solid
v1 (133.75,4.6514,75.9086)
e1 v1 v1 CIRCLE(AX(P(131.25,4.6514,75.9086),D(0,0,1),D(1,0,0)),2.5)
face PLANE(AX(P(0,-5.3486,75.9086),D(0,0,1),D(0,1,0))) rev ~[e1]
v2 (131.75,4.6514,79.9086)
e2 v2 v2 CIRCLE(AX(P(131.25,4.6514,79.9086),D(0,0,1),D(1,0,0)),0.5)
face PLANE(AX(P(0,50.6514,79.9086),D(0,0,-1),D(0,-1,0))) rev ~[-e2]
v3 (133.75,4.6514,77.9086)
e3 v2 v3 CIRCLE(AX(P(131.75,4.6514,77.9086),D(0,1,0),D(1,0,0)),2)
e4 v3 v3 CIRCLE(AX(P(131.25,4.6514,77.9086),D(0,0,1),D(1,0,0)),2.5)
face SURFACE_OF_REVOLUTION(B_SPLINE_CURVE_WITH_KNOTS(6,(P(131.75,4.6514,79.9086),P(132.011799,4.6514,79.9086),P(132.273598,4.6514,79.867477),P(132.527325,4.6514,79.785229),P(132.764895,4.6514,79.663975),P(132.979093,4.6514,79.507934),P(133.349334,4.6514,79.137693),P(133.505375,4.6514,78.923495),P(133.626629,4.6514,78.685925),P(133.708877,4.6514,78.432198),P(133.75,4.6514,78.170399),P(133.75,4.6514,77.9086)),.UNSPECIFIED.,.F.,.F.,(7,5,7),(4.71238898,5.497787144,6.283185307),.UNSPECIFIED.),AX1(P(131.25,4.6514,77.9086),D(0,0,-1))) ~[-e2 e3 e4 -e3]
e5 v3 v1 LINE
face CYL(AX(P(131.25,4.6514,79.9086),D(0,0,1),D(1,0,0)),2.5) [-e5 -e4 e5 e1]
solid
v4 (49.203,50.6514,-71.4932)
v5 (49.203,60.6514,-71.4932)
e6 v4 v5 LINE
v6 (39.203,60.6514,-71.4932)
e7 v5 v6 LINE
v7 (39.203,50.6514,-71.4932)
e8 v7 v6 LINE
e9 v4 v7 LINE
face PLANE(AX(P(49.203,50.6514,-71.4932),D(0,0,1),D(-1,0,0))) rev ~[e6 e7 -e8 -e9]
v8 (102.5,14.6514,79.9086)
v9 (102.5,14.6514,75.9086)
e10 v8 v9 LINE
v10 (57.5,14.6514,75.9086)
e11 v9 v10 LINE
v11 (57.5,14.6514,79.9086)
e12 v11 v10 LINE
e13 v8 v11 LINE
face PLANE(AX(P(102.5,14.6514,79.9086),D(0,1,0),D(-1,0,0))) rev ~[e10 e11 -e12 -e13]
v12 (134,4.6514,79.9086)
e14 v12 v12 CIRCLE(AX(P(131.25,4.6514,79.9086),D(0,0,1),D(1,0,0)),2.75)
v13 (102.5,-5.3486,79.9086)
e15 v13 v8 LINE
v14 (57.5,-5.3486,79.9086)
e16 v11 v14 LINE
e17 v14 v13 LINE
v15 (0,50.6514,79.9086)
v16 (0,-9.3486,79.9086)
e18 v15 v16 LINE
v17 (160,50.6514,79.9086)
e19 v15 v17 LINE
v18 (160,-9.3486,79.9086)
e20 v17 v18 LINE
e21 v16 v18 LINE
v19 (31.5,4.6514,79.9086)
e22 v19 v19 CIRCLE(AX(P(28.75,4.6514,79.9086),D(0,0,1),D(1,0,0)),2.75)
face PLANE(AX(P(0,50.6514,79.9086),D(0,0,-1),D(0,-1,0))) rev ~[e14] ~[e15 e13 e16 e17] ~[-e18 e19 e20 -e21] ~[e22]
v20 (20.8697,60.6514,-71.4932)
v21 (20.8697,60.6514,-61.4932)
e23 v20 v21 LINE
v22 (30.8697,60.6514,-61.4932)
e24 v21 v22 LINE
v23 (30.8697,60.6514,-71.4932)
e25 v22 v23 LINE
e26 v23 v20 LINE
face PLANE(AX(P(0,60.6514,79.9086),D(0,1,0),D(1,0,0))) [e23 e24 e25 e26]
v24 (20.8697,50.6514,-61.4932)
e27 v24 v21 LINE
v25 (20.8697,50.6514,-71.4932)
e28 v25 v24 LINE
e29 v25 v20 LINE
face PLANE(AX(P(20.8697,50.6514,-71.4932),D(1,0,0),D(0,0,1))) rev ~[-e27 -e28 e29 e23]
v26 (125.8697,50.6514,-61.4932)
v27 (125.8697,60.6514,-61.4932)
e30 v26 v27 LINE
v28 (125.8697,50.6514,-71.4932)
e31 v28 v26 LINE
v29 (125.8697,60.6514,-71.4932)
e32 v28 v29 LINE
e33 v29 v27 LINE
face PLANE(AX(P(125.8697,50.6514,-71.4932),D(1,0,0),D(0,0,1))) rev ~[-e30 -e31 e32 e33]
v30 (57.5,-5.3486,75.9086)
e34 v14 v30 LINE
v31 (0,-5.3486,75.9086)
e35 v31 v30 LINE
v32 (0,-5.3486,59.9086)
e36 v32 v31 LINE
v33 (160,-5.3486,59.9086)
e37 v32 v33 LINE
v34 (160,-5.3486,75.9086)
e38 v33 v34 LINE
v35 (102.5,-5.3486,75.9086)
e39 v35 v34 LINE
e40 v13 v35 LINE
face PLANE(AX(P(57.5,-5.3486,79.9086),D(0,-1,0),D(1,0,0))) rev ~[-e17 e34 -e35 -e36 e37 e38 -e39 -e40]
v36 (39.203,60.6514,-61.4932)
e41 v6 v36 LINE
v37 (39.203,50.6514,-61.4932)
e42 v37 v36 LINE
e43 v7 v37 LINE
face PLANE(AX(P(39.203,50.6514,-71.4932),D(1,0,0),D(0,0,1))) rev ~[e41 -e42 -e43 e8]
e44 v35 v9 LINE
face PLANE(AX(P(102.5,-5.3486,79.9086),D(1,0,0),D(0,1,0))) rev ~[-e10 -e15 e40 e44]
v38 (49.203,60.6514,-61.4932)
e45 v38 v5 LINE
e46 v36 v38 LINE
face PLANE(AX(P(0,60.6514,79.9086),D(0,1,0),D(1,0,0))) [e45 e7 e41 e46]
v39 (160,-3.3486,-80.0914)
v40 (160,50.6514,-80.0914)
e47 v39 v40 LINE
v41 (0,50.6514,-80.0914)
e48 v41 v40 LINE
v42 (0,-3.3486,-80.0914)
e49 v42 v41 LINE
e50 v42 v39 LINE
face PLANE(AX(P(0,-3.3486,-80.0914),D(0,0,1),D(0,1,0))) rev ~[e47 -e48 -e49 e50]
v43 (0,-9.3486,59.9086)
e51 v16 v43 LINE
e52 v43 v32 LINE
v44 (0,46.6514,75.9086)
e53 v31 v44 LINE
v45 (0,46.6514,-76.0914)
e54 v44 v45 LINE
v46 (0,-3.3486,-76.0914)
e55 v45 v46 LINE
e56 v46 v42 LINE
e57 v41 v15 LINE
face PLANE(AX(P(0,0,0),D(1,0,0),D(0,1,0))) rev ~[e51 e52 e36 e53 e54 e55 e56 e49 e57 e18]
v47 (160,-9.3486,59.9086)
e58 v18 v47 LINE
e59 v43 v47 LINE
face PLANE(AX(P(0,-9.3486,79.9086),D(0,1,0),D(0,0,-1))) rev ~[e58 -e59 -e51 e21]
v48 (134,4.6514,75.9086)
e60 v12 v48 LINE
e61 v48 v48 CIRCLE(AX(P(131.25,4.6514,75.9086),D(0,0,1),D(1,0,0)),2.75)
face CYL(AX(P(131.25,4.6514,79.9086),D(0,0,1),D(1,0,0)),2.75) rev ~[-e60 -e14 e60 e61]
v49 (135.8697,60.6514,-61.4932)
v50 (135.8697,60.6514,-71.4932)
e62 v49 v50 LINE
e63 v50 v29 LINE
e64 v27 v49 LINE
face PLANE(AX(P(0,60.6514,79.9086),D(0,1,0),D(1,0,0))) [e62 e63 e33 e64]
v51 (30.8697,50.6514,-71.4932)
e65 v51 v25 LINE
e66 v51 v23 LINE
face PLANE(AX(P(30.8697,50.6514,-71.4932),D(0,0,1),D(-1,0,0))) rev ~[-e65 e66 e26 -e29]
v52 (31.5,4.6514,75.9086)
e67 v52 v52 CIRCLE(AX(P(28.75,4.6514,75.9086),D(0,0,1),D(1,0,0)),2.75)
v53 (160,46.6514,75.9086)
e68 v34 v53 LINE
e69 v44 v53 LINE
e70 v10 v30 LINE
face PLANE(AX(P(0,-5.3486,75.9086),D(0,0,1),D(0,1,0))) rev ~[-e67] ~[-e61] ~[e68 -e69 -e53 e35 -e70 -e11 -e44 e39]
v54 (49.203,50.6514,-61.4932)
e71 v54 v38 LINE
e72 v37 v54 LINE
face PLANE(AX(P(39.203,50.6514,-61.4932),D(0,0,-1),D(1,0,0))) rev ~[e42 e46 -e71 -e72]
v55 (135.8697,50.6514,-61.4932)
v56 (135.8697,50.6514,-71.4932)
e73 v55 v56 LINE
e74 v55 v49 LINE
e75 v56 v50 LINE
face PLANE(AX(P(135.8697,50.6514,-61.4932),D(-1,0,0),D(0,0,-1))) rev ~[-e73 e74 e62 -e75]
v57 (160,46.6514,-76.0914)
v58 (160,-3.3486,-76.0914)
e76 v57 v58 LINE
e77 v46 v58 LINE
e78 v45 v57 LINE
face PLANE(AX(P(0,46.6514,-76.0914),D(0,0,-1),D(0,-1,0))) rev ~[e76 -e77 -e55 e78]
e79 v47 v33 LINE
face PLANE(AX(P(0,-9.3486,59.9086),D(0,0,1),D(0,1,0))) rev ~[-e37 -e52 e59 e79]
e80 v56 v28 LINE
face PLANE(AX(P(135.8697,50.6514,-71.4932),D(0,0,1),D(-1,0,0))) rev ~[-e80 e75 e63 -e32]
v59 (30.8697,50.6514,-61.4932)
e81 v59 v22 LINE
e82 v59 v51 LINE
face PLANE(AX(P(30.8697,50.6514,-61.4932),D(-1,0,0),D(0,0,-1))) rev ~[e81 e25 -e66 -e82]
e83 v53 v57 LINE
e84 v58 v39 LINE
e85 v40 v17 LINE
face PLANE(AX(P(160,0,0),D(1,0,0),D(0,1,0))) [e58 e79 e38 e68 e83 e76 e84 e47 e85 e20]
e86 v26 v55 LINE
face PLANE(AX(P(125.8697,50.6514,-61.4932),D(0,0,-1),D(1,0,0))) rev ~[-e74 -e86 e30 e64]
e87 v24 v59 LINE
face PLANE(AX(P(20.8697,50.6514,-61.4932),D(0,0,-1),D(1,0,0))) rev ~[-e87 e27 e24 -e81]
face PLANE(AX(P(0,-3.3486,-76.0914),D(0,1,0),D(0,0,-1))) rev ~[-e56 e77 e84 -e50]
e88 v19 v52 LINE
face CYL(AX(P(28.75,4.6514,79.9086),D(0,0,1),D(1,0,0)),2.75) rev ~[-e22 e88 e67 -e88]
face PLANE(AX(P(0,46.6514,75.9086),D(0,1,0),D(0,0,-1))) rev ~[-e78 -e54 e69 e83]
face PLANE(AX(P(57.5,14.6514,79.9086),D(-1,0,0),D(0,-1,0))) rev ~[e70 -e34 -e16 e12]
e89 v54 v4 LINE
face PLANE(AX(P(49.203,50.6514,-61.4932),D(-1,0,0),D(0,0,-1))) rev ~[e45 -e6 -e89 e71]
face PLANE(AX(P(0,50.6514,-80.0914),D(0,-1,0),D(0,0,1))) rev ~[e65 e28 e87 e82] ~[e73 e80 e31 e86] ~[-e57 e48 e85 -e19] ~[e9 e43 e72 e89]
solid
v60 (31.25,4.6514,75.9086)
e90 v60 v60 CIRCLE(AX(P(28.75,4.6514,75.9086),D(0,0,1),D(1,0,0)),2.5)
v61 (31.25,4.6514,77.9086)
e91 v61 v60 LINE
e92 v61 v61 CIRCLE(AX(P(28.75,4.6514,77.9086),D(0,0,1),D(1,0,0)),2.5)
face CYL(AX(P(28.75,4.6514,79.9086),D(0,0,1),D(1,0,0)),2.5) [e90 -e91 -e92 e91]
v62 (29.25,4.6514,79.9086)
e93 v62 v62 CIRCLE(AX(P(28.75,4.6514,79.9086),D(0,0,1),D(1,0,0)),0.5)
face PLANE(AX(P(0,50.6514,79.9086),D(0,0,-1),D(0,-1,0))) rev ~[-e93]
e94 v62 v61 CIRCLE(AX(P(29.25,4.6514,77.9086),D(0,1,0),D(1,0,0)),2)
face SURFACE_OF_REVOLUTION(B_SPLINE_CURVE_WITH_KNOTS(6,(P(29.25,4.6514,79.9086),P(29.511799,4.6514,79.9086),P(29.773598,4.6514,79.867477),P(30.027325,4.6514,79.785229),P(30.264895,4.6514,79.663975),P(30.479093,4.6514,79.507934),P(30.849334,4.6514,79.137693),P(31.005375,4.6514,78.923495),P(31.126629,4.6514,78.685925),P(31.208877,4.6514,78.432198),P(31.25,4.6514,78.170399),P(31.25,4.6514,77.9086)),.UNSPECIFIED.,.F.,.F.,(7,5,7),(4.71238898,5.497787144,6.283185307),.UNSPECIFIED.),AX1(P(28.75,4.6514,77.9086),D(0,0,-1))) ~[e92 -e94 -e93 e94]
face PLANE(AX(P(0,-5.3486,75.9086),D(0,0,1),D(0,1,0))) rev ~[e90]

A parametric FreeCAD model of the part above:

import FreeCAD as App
import Part
import Sketcher

V = App.Vector


def edges_at(feature, points):
    """Names of the edges that pass closest to the given points."""
    edges = feature.Shape.Edges
    near = lambda p: min(range(len(edges)), key=lambda i: edges[i].distToShape(Part.Vertex(*p))[0])
    return sorted({f"Edge{near(p) + 1}" for p in points})


def add_polygon(sketch, points):
    """Adds a closed chain of lines whose ends are joined by coincident constraints."""
    first, n = sketch.GeometryCount, len(points)
    for a, b in zip(points, points[1:] + points[:1]):
        sketch.addGeometry(Part.LineSegment(App.Vector(*a, 0), App.Vector(*b, 0)), False)
    for i in range(n):
        sketch.addConstraint(Sketcher.Constraint("Coincident", first + i, 2, first + (i + 1) % n, 1))

doc = App.newDocument("Part")
body = doc.addObject("PartDesign::Body", "Body")
body.AllowCompound = True

# Sketch on YZ plane
sketch1 = doc.addObject("Sketcher::SketchObject", "Sketch")
body.addObject(sketch1)
sketch1.AttachmentSupport = (doc.YZ_Plane, [""])
sketch1.MapMode = "FlatFace"
add_polygon(sketch1, [(50.7, -80.1), (50.7, 79.9), (-9.3, 79.9), (-9.3, 59.9), (-5.3, 59.9), (-5.3, 75.9), (46.7, 75.9), (46.7, -76.1), (-3.3, -76.1), (-3.3, -80.1)])  # lines 0-9
sketch1.addConstraint(Sketcher.Constraint("Vertical", 0))
sketch1.addConstraint(Sketcher.Constraint("Horizontal", 1))
sketch1.addConstraint(Sketcher.Constraint("Vertical", 2))
sketch1.addConstraint(Sketcher.Constraint("Horizontal", 3))
sketch1.addConstraint(Sketcher.Constraint("Vertical", 4))
sketch1.addConstraint(Sketcher.Constraint("Horizontal", 5))
sketch1.addConstraint(Sketcher.Constraint("Vertical", 6))
sketch1.addConstraint(Sketcher.Constraint("Horizontal", 7))
sketch1.addConstraint(Sketcher.Constraint("Vertical", 8))
sketch1.addConstraint(Sketcher.Constraint("Horizontal", 9))
sketch1.addConstraint(Sketcher.Constraint("Equal", 3, 8))
sketch1.addConstraint(Sketcher.Constraint("DistanceX", 1, 2, 1, 1, 60.0))
sketch1.addConstraint(Sketcher.Constraint("DistanceX", 3, 1, 3, 2, 4.0))
sketch1.addConstraint(Sketcher.Constraint("DistanceX", 9, 1, 9, 2, 54.0))
sketch1.addConstraint(Sketcher.Constraint("DistanceY", 0, 1, 0, 2, 160.0))
sketch1.addConstraint(Sketcher.Constraint("DistanceY", 2, 2, 2, 1, 20.0))
sketch1.addConstraint(Sketcher.Constraint("DistanceY", 4, 2, 1, 2, 4.0))
sketch1.addConstraint(Sketcher.Constraint("DistanceX", 5, 2, 0, 2, 4.0))
sketch1.addConstraint(Sketcher.Constraint("DistanceX", -1, 1, 0, 2, 50.6514))
sketch1.addConstraint(Sketcher.Constraint("DistanceY", -1, 1, 0, 2, 79.9086))
pad1 = doc.addObject("PartDesign::Pad", "Pad")
body.addObject(pad1)
pad1.Profile = sketch1
pad1.Length = 160

# Sketch on XY plane
sketch2 = doc.addObject("Sketcher::SketchObject", "Sketch001")
body.addObject(sketch2)
sketch2.AttachmentSupport = (doc.XY_Plane, [""])
sketch2.MapMode = "FlatFace"
sketch2.AttachmentOffset = App.Placement(V(0, 0, 79.9086), App.Rotation())
add_polygon(sketch2, [(58, 15), (58, -5), (102, -5), (102, 15)])  # lines 0-3
sketch2.addConstraint(Sketcher.Constraint("Vertical", 0))
sketch2.addConstraint(Sketcher.Constraint("Horizontal", 1))
sketch2.addConstraint(Sketcher.Constraint("Vertical", 2))
sketch2.addConstraint(Sketcher.Constraint("Horizontal", 3))
sketch2.addConstraint(Sketcher.Constraint("DistanceX", 1, 1, 1, 2, 45.0))
sketch2.addConstraint(Sketcher.Constraint("DistanceY", 0, 2, 0, 1, 20.0))
sketch2.addConstraint(Sketcher.Constraint("DistanceX", -1, 1, 0, 2, 57.5))
sketch2.addConstraint(Sketcher.Constraint("DistanceY", 0, 2, -1, 1, 5.3486))
pocket1 = doc.addObject("PartDesign::Pocket", "Pocket")
body.addObject(pocket1)
pocket1.Profile = sketch2
pocket1.Length = 5

# Sketch on XY plane
sketch3 = doc.addObject("Sketcher::SketchObject", "Sketch002")
body.addObject(sketch3)
sketch3.AttachmentSupport = (doc.XY_Plane, [""])
sketch3.MapMode = "FlatFace"
sketch3.AttachmentOffset = App.Placement(V(0, 0, 79.9086), App.Rotation())
sketch3.addGeometry(Part.Circle(V(28.8, 4.7, 0), V(0, 0, 1), 2.8), False)
sketch3.addGeometry(Part.Circle(V(28.8, 4.7, 0), V(0, 0, 1), 2.5), False)
sketch3.addGeometry(Part.Circle(V(131.2, 4.7, 0), V(0, 0, 1), 2.8), False)
sketch3.addGeometry(Part.Circle(V(131.2, 4.7, 0), V(0, 0, 1), 2.5), False)
sketch3.addConstraint(Sketcher.Constraint("Coincident", 1, 3, 0, 3))
sketch3.addConstraint(Sketcher.Constraint("Coincident", 3, 3, 2, 3))
sketch3.addConstraint(Sketcher.Constraint("Equal", 0, 2))
sketch3.addConstraint(Sketcher.Constraint("Equal", 1, 3))
sketch3.addConstraint(Sketcher.Constraint("Horizontal", 1, 3, 2, 3))
sketch3.addConstraint(Sketcher.Constraint("Diameter", 1, 5.0))
sketch3.addConstraint(Sketcher.Constraint("Diameter", 0, 5.5))
sketch3.addConstraint(Sketcher.Constraint("DistanceX", -1, 1, 0, 3, 28.75))
sketch3.addConstraint(Sketcher.Constraint("DistanceX", 0, 3, 2, 3, 102.5))
sketch3.addConstraint(Sketcher.Constraint("DistanceY", -1, 1, 0, 3, 4.6514))
pocket2 = doc.addObject("PartDesign::Pocket", "Pocket001")
body.addObject(pocket2)
pocket2.Profile = sketch3
pocket2.Length = 5
doc.recompute()

fillet = doc.addObject("PartDesign::Fillet", "Fillet")
body.addObject(fillet)
fillet.Base = (pocket2, edges_at(pocket2, [(26.25, 4.651, 79.909), (128.75, 4.651, 79.909)]))
fillet.Radius = 2

# Sketch on XZ plane
sketch4 = doc.addObject("Sketcher::SketchObject", "Sketch003")
body.addObject(sketch4)
sketch4.AttachmentSupport = (doc.XZ_Plane, [""])
sketch4.MapMode = "FlatFace"
sketch4.AttachmentOffset = App.Placement(V(0, 0, -50.6514), App.Rotation())
add_polygon(sketch4, [(21, -71), (21, -61), (31, -61), (31, -71)])  # lines 0-3
add_polygon(sketch4, [(39, -71), (39, -61), (49, -61), (49, -71)])  # lines 4-7
add_polygon(sketch4, [(126, -71), (126, -61), (136, -61), (136, -71)])  # lines 8-11
sketch4.addConstraint(Sketcher.Constraint("Vertical", 0))
sketch4.addConstraint(Sketcher.Constraint("Horizontal", 1))
sketch4.addConstraint(Sketcher.Constraint("Vertical", 2))
sketch4.addConstraint(Sketcher.Constraint("Horizontal", 3))
sketch4.addConstraint(Sketcher.Constraint("Vertical", 4))
sketch4.addConstraint(Sketcher.Constraint("Horizontal", 5))
sketch4.addConstraint(Sketcher.Constraint("Vertical", 6))
sketch4.addConstraint(Sketcher.Constraint("Horizontal", 7))
sketch4.addConstraint(Sketcher.Constraint("Vertical", 8))
sketch4.addConstraint(Sketcher.Constraint("Horizontal", 9))
sketch4.addConstraint(Sketcher.Constraint("Vertical", 10))
sketch4.addConstraint(Sketcher.Constraint("Horizontal", 11))
sketch4.addConstraint(Sketcher.Constraint("Horizontal", 1, 2, 4, 2))
sketch4.addConstraint(Sketcher.Constraint("Horizontal", 3, 2, 6, 2))
sketch4.addConstraint(Sketcher.Constraint("Horizontal", 5, 2, 8, 2))
sketch4.addConstraint(Sketcher.Constraint("Horizontal", 7, 2, 10, 2))
sketch4.addConstraint(Sketcher.Constraint("Equal", 3, 5))
sketch4.addConstraint(Sketcher.Constraint("Equal", 7, 9))
sketch4.addConstraint(Sketcher.Constraint("Equal", 11, 0))
sketch4.addConstraint(Sketcher.Constraint("DistanceX", 1, 1, 1, 2, 10.0))
sketch4.addConstraint(Sketcher.Constraint("DistanceX", 1, 2, 8, 2, 95.0))
sketch4.addConstraint(Sketcher.Constraint("DistanceX", -1, 1, 4, 2, 39.203))
sketch4.addConstraint(Sketcher.Constraint("DistanceX", -1, 1, 0, 2, 20.8697))
sketch4.addConstraint(Sketcher.Constraint("DistanceY", 0, 2, -1, 1, 61.4932))
pad2 = doc.addObject("PartDesign::Pad", "Pad001")
body.addObject(pad2)
pad2.Profile = sketch4
pad2.Length = 10
pad2.Reversed = True

doc.recompute()
